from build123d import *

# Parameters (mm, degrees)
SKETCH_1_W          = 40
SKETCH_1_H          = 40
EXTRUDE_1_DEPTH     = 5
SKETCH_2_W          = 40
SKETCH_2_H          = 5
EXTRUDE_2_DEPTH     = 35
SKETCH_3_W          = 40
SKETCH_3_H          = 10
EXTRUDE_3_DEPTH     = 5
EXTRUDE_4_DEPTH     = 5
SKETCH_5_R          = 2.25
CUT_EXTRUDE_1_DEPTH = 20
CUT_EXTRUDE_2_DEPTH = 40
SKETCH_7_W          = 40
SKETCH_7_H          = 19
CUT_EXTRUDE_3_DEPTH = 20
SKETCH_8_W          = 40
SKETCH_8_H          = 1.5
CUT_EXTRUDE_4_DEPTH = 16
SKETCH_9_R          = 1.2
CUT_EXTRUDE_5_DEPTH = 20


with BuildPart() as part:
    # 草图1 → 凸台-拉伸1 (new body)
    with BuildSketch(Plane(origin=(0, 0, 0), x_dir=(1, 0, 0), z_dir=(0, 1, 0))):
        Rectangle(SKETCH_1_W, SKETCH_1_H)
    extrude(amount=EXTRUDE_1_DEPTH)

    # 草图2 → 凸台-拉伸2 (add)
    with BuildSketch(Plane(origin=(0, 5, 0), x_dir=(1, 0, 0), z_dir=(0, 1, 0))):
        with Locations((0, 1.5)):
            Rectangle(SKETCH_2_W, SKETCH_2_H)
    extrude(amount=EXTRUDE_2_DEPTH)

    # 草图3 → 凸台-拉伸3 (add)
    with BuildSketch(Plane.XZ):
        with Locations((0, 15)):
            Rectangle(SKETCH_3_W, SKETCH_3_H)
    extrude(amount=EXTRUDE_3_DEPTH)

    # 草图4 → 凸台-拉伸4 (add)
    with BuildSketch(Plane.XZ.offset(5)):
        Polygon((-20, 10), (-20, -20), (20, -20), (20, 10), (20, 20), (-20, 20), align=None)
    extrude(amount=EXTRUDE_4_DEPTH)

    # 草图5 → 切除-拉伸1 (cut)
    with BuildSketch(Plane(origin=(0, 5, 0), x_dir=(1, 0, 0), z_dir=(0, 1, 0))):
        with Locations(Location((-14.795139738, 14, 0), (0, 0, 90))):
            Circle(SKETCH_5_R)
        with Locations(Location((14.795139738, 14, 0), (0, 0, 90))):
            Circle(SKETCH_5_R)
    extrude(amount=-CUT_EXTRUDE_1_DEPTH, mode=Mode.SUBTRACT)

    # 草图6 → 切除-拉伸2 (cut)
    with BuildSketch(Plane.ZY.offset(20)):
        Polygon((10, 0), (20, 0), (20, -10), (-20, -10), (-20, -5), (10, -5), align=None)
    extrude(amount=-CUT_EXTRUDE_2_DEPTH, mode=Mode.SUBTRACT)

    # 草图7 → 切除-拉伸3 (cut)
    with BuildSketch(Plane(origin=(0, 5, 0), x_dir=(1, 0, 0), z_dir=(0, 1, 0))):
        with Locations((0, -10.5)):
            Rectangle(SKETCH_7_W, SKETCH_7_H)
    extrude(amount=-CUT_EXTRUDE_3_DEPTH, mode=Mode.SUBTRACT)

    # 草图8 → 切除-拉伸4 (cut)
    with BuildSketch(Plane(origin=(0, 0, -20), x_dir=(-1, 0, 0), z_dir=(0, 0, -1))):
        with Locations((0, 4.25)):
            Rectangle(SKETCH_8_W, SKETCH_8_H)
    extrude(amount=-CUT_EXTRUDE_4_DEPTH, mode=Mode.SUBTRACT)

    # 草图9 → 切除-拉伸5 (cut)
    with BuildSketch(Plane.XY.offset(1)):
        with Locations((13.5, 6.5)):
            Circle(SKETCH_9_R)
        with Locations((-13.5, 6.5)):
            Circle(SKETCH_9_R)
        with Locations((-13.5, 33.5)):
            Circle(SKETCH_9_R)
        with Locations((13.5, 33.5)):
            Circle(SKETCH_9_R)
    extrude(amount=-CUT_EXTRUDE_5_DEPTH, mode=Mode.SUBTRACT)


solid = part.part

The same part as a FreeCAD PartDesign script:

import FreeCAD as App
import Part
import Sketcher
from FreeCAD import Vector
Q = App.Units.Quantity

doc = App.newDocument("Part")
params = doc.addObject("Spreadsheet::Sheet", "Params")
for row, (alias, value) in enumerate([
    ("sketch1_width", "40 mm"),
    ("pad1_length", "5 mm"),
    ("sketch2_width", "40 mm"),
    ("sketch2_height", "5 mm"),
    ("pad2_length", "35 mm"),
    ("sketch3_width", "40 mm"),
    ("sketch3_height", "10 mm"),
    ("pad3_length", "5 mm"),
    ("sketch4_width", "40 mm"),
    ("pad4_length", "5 mm"),
    ("sketch5_diameter", "4.5 mm"),
    ("pocket1_length", "20 mm"),
    ("sketch6_width", "5 mm"),
    ("sketch6_height", "30 mm"),
    ("pocket2_length", "40 mm"),
    ("sketch7_width", "40 mm"),
    ("sketch7_height", "19 mm"),
    ("pocket3_length", "20 mm"),
    ("sketch8_width", "40 mm"),
    ("sketch8_height", "1.5 mm"),
    ("pocket4_length", "16 mm"),
    ("sketch9_diameter", "2.4 mm"),
    ("pocket5_length", "20 mm"),
], start=1):
    params.set(f"A{row}", alias)
    params.set(f"B{row}", "=" + value)
    params.setAlias(f"B{row}", alias)

body = doc.addObject("PartDesign::Body", "Body")

sketch1 = body.newObject("Sketcher::SketchObject", "Sketch")
sketch1.AttachmentSupport = (doc.getObject("XZ_Plane"), [""])
sketch1.MapMode = "FlatFace"
sketch1.addGeometry([
    Part.LineSegment(Vector(-20, -20, 0), Vector(-20, 20, 0)),
    Part.LineSegment(Vector(-20, 20, 0), Vector(20, 20, 0)),
    Part.LineSegment(Vector(20, 20, 0), Vector(20, -20, 0)),
    Part.LineSegment(Vector(20, -20, 0), Vector(-20, -20, 0)),
], False)
sketch1.addConstraint([
    Sketcher.Constraint("Coincident", 0, 2, 1, 1),
    Sketcher.Constraint("Coincident", 1, 2, 2, 1),
    Sketcher.Constraint("Coincident", 2, 2, 3, 1),
    Sketcher.Constraint("Coincident", 3, 2, 0, 1),
    Sketcher.Constraint("Vertical", 0),
    Sketcher.Constraint("Horizontal", 1),
    Sketcher.Constraint("Vertical", 2),
    Sketcher.Constraint("Horizontal", 3),
    Sketcher.Constraint("Symmetric", 0, 2, 2, 2, -1, 1),
    Sketcher.Constraint("Equal", 3, 0),
    Sketcher.Constraint("DistanceX", 1, 1, 1, 2, Q("40 mm")),
])
sketch1.setExpression("Constraints[10]", "Params.sketch1_width")
pad1 = body.newObject("PartDesign::Pad", "Pad")
pad1.Profile = sketch1
pad1.setExpression("Length", "Params.pad1_length")
pad1.Reversed = True

sketch2 = body.newObject("Sketcher::SketchObject", "Sketch001")
sketch2.AttachmentSupport = (doc.getObject("XZ_Plane"), [""])
sketch2.MapMode = "FlatFace"
sketch2.AttachmentOffset = App.Placement(Vector(0, 0, -5), App.Rotation())
sketch2.addGeometry([
    Part.LineSegment(Vector(-20, -4, 0), Vector(-20, 1, 0)),
    Part.LineSegment(Vector(-20, 1, 0), Vector(20, 1, 0)),
    Part.LineSegment(Vector(20, 1, 0), Vector(20, -4, 0)),
    Part.LineSegment(Vector(20, -4, 0), Vector(-20, -4, 0)),
], False)
sketch2.addConstraint([
    Sketcher.Constraint("Coincident", 0, 2, 1, 1),
    Sketcher.Constraint("Coincident", 1, 2, 2, 1),
    Sketcher.Constraint("Coincident", 2, 2, 3, 1),
    Sketcher.Constraint("Coincident", 3, 2, 0, 1),
    Sketcher.Constraint("Vertical", 0),
    Sketcher.Constraint("Horizontal", 1),
    Sketcher.Constraint("Vertical", 2),
    Sketcher.Constraint("Horizontal", 3),
    Sketcher.Constraint("DistanceX", 1, 1, 1, 2, Q("40 mm")),
    Sketcher.Constraint("DistanceY", 0, 1, 0, 2, Q("5 mm")),
    Sketcher.Constraint("DistanceX", 0, 2, -1, 1, Q("20 mm")),
    Sketcher.Constraint("DistanceY", -1, 1, 0, 2, Q("1 mm")),
])
sketch2.setExpression("Constraints[8]", "Params.sketch2_width")
sketch2.setExpression("Constraints[9]", "Params.sketch2_height")
pad2 = body.newObject("PartDesign::Pad", "Pad001")
pad2.Profile = sketch2
pad2.setExpression("Length", "Params.pad2_length")
pad2.Reversed = True

sketch3 = body.newObject("Sketcher::SketchObject", "Sketch002")
sketch3.AttachmentSupport = (doc.getObject("XZ_Plane"), [""])
sketch3.MapMode = "FlatFace"
sketch3.addGeometry([
    Part.LineSegment(Vector(-20, 20, 0), Vector(-20, 10, 0)),
    Part.LineSegment(Vector(-20, 10, 0), Vector(20, 10, 0)),
    Part.LineSegment(Vector(20, 10, 0), Vector(20, 20, 0)),
    Part.LineSegment(Vector(20, 20, 0), Vector(-20, 20, 0)),
], False)
sketch3.addConstraint([
    Sketcher.Constraint("Coincident", 0, 2, 1, 1),
    Sketcher.Constraint("Coincident", 1, 2, 2, 1),
    Sketcher.Constraint("Coincident", 2, 2, 3, 1),
    Sketcher.Constraint("Coincident", 3, 2, 0, 1),
    Sketcher.Constraint("Vertical", 0),
    Sketcher.Constraint("Horizontal", 1),
    Sketcher.Constraint("Vertical", 2),
    Sketcher.Constraint("Horizontal", 3),
    Sketcher.Constraint("DistanceX", 1, 1, 1, 2, Q("40 mm")),
    Sketcher.Constraint("DistanceY", 0, 2, 0, 1, Q("10 mm")),
    Sketcher.Constraint("DistanceX", 0, 2, -1, 1, Q("20 mm")),
    Sketcher.Constraint("DistanceY", -1, 1, 0, 2, Q("10 mm")),
])
sketch3.setExpression("Constraints[8]", "Params.sketch3_width")
sketch3.setExpression("Constraints[9]", "Params.sketch3_height")
pad3 = body.newObject("PartDesign::Pad", "Pad002")
pad3.Profile = sketch3
pad3.setExpression("Length", "Params.pad3_length")

sketch4 = body.newObject("Sketcher::SketchObject", "Sketch003")
sketch4.AttachmentSupport = (doc.getObject("XZ_Plane"), [""])
sketch4.MapMode = "FlatFace"
sketch4.AttachmentOffset = App.Placement(Vector(0, 0, 5), App.Rotation())
sketch4.addGeometry([
    Part.LineSegment(Vector(-20, -20, 0), Vector(20, -20, 0)),
    Part.LineSegment(Vector(20, -20, 0), Vector(20, 20, 0)),
    Part.LineSegment(Vector(20, 20, 0), Vector(-20, 20, 0)),
    Part.LineSegment(Vector(-20, 20, 0), Vector(-20, -20, 0)),
], False)
sketch4.addConstraint([
    Sketcher.Constraint("Coincident", 0, 2, 1, 1),
    Sketcher.Constraint("Coincident", 1, 2, 2, 1),
    Sketcher.Constraint("Coincident", 2, 2, 3, 1),
    Sketcher.Constraint("Coincident", 3, 2, 0, 1),
    Sketcher.Constraint("Horizontal", 0),
    Sketcher.Constraint("Vertical", 1),
    Sketcher.Constraint("Horizontal", 2),
    Sketcher.Constraint("Vertical", 3),
    Sketcher.Constraint("Symmetric", 0, 2, 2, 2, -1, 1),
    Sketcher.Constraint("Equal", 2, 1),
    Sketcher.Constraint("DistanceX", 0, 1, 0, 2, Q("40 mm")),
])
sketch4.setExpression("Constraints[10]", "Params.sketch4_width")
pad4 = body.newObject("PartDesign::Pad", "Pad003")
pad4.Profile = sketch4
pad4.setExpression("Length", "Params.pad4_length")

sketch5 = body.newObject("Sketcher::SketchObject", "Sketch004")
sketch5.AttachmentSupport = (doc.getObject("XZ_Plane"), [""])
sketch5.MapMode = "FlatFace"
sketch5.AttachmentOffset = App.Placement(Vector(0, 0, -5), App.Rotation())
sketch5.addGeometry([
    Part.Circle(Vector(-14.8, -14, 0), Vector(0, 0, 1), 2.2),
    Part.Circle(Vector(14.8, -14, 0), Vector(0, 0, 1), 2.2),
], False)
sketch5.addConstraint([
    Sketcher.Constraint("Equal", 0, 1),
    Sketcher.Constraint("Symmetric", 0, 3, 1, 3, -2),
    Sketcher.Constraint("Diameter", 0, Q("4.5 mm")),
    Sketcher.Constraint("DistanceY", 0, 3, -1, 1, Q("14 mm")),
    Sketcher.Constraint("DistanceX", 0, 3, -1, 1, Q("14.79514 mm")),
])
sketch5.setExpression("Constraints[2]", "Params.sketch5_diameter")
pocket1 = body.newObject("PartDesign::Pocket", "Pocket")
pocket1.Profile = sketch5
pocket1.setExpression("Length", "Params.pocket1_length")
pocket1.Reversed = True

sketch6 = body.newObject("Sketcher::SketchObject", "Sketch005")
sketch6.AttachmentSupport = (doc.getObject("YZ_Plane"), [""])
sketch6.MapMode = "FlatFace"
sketch6.AttachmentOffset = App.Placement(Vector(0, 0, -20), App.Rotation())
sketch6.addGeometry([
    Part.LineSegment(Vector(0, 20, 0), Vector(0, 10, 0)),
    Part.LineSegment(Vector(0, 10, 0), Vector(-5, 10, 0)),
    Part.LineSegment(Vector(-5, 10, 0), Vector(-5, -20, 0)),
    Part.LineSegment(Vector(-5, -20, 0), Vector(-10, -20, 0)),
    Part.LineSegment(Vector(-10, -20, 0), Vector(-10, 20, 0)),
    Part.LineSegment(Vector(-10, 20, 0), Vector(0, 20, 0)),
], False)
sketch6.addConstraint([
    Sketcher.Constraint("Coincident", 0, 2, 1, 1),
    Sketcher.Constraint("Coincident", 1, 2, 2, 1),
    Sketcher.Constraint("Coincident", 2, 2, 3, 1),
    Sketcher.Constraint("Coincident", 3, 2, 4, 1),
    Sketcher.Constraint("Coincident", 4, 2, 5, 1),
    Sketcher.Constraint("Coincident", 5, 2, 0, 1),
    Sketcher.Constraint("Vertical", 0),
    Sketcher.Constraint("Horizontal", 1),
    Sketcher.Constraint("Vertical", 2),
    Sketcher.Constraint("Horizontal", 3),
    Sketcher.Constraint("Vertical", 4),
    Sketcher.Constraint("Horizontal", 5),
    Sketcher.Constraint("PointOnObject", 0, 2, -2),
    Sketcher.Constraint("Equal", 1, 3),
    Sketcher.Constraint("Equal", 5, 0),
    Sketcher.Constraint("DistanceX", 1, 2, 1, 1, Q("5 mm")),
    Sketcher.Constraint("DistanceY", 2, 2, 2, 1, Q("30 mm")),
    Sketcher.Constraint("DistanceY", -1, 1, 0, 2, Q("10 mm")),
])
sketch6.setExpression("Constraints[15]", "Params.sketch6_width")
sketch6.setExpression("Constraints[16]", "Params.sketch6_height")
pocket2 = body.newObject("PartDesign::Pocket", "Pocket001")
pocket2.Profile = sketch6
pocket2.setExpression("Length", "Params.pocket2_length")
pocket2.Reversed = True

sketch7 = body.newObject("Sketcher::SketchObject", "Sketch006")
sketch7.AttachmentSupport = (doc.getObject("XZ_Plane"), [""])
sketch7.MapMode = "FlatFace"
sketch7.AttachmentOffset = App.Placement(Vector(0, 0, -5), App.Rotation())
sketch7.addGeometry([
    Part.LineSegment(Vector(-20, 1, 0), Vector(-20, 20, 0)),
    Part.LineSegment(Vector(-20, 20, 0), Vector(20, 20, 0)),
    Part.LineSegment(Vector(20, 20, 0), Vector(20, 1, 0)),
    Part.LineSegment(Vector(20, 1, 0), Vector(-20, 1, 0)),
], False)
sketch7.addConstraint([
    Sketcher.Constraint("Coincident", 0, 2, 1, 1),
    Sketcher.Constraint("Coincident", 1, 2, 2, 1),
    Sketcher.Constraint("Coincident", 2, 2, 3, 1),
    Sketcher.Constraint("Coincident", 3, 2, 0, 1),
    Sketcher.Constraint("Vertical", 0),
    Sketcher.Constraint("Horizontal", 1),
    Sketcher.Constraint("Vertical", 2),
    Sketcher.Constraint("Horizontal", 3),
    Sketcher.Constraint("DistanceX", 1, 1, 1, 2, Q("40 mm")),
    Sketcher.Constraint("DistanceY", 0, 1, 0, 2, Q("19 mm")),
    Sketcher.Constraint("DistanceX", 0, 2, -1, 1, Q("20 mm")),
    Sketcher.Constraint("DistanceY", -1, 1, 0, 2, Q("20 mm")),
])
sketch7.setExpression("Constraints[8]", "Params.sketch7_width")
sketch7.setExpression("Constraints[9]", "Params.sketch7_height")
pocket3 = body.newObject("PartDesign::Pocket", "Pocket002")
pocket3.Profile = sketch7
pocket3.setExpression("Length", "Params.pocket3_length")
pocket3.Reversed = True

sketch8 = body.newObject("Sketcher::SketchObject", "Sketch007")
sketch8.AttachmentSupport = (doc.getObject("XY_Plane"), [""])
sketch8.MapMode = "FlatFace"
sketch8.AttachmentOffset = App.Placement(Vector(0, 0, -20), App.Rotation())
sketch8.addGeometry([
    Part.LineSegment(Vector(20, 5, 0), Vector(20, 3.5, 0)),
    Part.LineSegment(Vector(20, 3.5, 0), Vector(-20, 3.5, 0)),
    Part.LineSegment(Vector(-20, 3.5, 0), Vector(-20, 5, 0)),
    Part.LineSegment(Vector(-20, 5, 0), Vector(20, 5, 0)),
], False)
sketch8.addConstraint([
    Sketcher.Constraint("Coincident", 0, 2, 1, 1),
    Sketcher.Constraint("Coincident", 1, 2, 2, 1),
    Sketcher.Constraint("Coincident", 2, 2, 3, 1),
    Sketcher.Constraint("Coincident", 3, 2, 0, 1),
    Sketcher.Constraint("Vertical", 0),
    Sketcher.Constraint("Horizontal", 1),
    Sketcher.Constraint("Vertical", 2),
    Sketcher.Constraint("Horizontal", 3),
    Sketcher.Constraint("DistanceX", 1, 2, 1, 1, Q("40 mm")),
    Sketcher.Constraint("DistanceY", 0, 2, 0, 1, Q("1.5 mm")),
    Sketcher.Constraint("DistanceX", -1, 1, 0, 2, Q("20 mm")),
    Sketcher.Constraint("DistanceY", -1, 1, 2, 2, Q("5 mm")),
])
sketch8.setExpression("Constraints[8]", "Params.sketch8_width")
sketch8.setExpression("Constraints[9]", "Params.sketch8_height")
pocket4 = body.newObject("PartDesign::Pocket", "Pocket003")
pocket4.Profile = sketch8
pocket4.setExpression("Length", "Params.pocket4_length")
pocket4.Reversed = True

sketch9 = body.newObject("Sketcher::SketchObject", "Sketch008")
sketch9.AttachmentSupport = (doc.getObject("XY_Plane"), [""])
sketch9.MapMode = "FlatFace"
sketch9.AttachmentOffset = App.Placement(Vector(0, 0, 1), App.Rotation())
sketch9.addGeometry([
    Part.Circle(Vector(13.5, 6.5, 0), Vector(0, 0, 1), 1.2),
    Part.Circle(Vector(-13.5, 6.5, 0), Vector(0, 0, 1), 1.2),
    Part.Circle(Vector(-13.5, 33.5, 0), Vector(0, 0, 1), 1.2),
    Part.Circle(Vector(13.5, 33.5, 0), Vector(0, 0, 1), 1.2),
], False)
sketch9.addConstraint([
    Sketcher.Constraint("Equal", 0, 1),
    Sketcher.Constraint("Equal", 1, 2),
    Sketcher.Constraint("Equal", 2, 3),
    Sketcher.Constraint("Symmetric", 0, 3, 1, 3, -2),
    Sketcher.Constraint("Symmetric", 2, 3, 3, 3, -2),
    Sketcher.Constraint("Vertical", 1, 3, 2, 3),
    Sketcher.Constraint("Diameter", 0, Q("2.4 mm")),
    Sketcher.Constraint("DistanceX", 1, 3, 0, 3, Q("27 mm")),
    Sketcher.Constraint("DistanceY", 1, 3, 2, 3, Q("27 mm")),
    Sketcher.Constraint("DistanceY", -1, 1, 0, 3, Q("6.5 mm")),
])
sketch9.setExpression("Constraints[6]", "Params.sketch9_diameter")
pocket5 = body.newObject("PartDesign::Pocket", "Pocket004")
pocket5.Profile = sketch9
pocket5.setExpression("Length", "Params.pocket5_length")

doc.recompute()
